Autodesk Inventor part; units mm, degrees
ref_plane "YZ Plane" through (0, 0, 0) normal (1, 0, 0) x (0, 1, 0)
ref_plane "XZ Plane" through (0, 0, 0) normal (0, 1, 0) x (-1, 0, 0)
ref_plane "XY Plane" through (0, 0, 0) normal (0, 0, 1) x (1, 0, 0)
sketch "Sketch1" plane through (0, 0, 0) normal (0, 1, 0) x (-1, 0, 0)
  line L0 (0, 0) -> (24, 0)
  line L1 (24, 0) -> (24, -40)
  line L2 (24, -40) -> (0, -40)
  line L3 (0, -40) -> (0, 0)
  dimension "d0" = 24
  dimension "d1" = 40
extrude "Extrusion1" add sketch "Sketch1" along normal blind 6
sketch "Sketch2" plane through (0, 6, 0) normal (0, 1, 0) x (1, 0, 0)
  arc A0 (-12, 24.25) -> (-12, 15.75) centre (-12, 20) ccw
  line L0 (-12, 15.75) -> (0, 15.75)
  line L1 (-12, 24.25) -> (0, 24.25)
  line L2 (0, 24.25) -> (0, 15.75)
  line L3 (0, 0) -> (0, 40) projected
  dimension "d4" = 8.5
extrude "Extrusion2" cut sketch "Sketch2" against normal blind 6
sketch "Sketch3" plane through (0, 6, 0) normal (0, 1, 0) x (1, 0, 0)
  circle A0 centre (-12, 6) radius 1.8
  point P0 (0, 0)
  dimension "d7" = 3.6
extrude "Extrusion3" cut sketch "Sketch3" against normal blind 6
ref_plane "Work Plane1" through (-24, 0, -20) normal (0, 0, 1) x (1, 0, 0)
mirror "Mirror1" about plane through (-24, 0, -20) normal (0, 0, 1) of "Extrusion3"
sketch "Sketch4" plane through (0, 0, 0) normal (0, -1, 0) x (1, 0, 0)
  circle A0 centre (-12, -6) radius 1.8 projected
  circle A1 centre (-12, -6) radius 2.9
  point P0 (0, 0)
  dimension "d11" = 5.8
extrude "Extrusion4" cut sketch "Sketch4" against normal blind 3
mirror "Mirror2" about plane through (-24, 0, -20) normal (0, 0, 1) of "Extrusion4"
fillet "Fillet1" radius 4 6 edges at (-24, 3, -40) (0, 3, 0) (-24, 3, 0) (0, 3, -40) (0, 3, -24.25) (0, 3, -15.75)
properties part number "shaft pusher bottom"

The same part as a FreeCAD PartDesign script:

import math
import FreeCAD as App
import Part
import Sketcher
Q = App.Units.Quantity


def edges_at(feature, points):
    """Names of the edges that pass closest to the given points."""
    edges = feature.Shape.Edges
    near = lambda p: min(range(len(edges)), key=lambda i: edges[i].distToShape(Part.Vertex(*p))[0])
    return sorted({f"Edge{near(p) + 1}" for p in points})

doc = App.newDocument("Part")
params = doc.addObject("Spreadsheet::Sheet", "Params")
for row, (alias, value) in enumerate([
    ("sketch1_width", "24 mm"),
    ("sketch1_height", "40 mm"),
    ("pad1_length", "6 mm"),
    ("sketch2_radius", "4.25 mm"),
    ("sketch2_width", "12 mm"),
    ("pocket1_length", "6 mm"),
    ("sketch3_diameter", "3.6 mm"),
    ("pocket2_length", "6 mm"),
    ("sketch4_diameter", "5.8 mm"),
    ("sketch4_diameter2", "3.6 mm"),
    ("pocket3_length", "3 mm"),
    ("fillet_radius", "4 mm"),
], start=1):
    params.set(f"A{row}", alias)
    params.set(f"B{row}", "=" + value)
    params.setAlias(f"B{row}", alias)

body = doc.addObject("PartDesign::Body", "Body")

# Sketch on XZ plane
sketch1 = body.newObject("Sketcher::SketchObject", "Sketch")
sketch1.AttachmentSupport = (doc.getObject("XZ_Plane"), [""])
sketch1.MapMode = "FlatFace"
sketch1.addGeometry(Part.LineSegment(App.Vector(-24, 0, 0), App.Vector(0, 0, 0)), False)
sketch1.addGeometry(Part.LineSegment(App.Vector(0, 0, 0), App.Vector(0, -40, 0)), False)
sketch1.addGeometry(Part.LineSegment(App.Vector(0, -40, 0), App.Vector(-24, -40, 0)), False)
sketch1.addGeometry(Part.LineSegment(App.Vector(-24, -40, 0), App.Vector(-24, 0, 0)), False)
sketch1.addConstraint(Sketcher.Constraint("Coincident", 0, 2, 1, 1))
sketch1.addConstraint(Sketcher.Constraint("Coincident", 1, 2, 2, 1))
sketch1.addConstraint(Sketcher.Constraint("Coincident", 2, 2, 3, 1))
sketch1.addConstraint(Sketcher.Constraint("Coincident", 3, 2, 0, 1))
sketch1.addConstraint(Sketcher.Constraint("Horizontal", 0))
sketch1.addConstraint(Sketcher.Constraint("Vertical", 1))
sketch1.addConstraint(Sketcher.Constraint("Horizontal", 2))
sketch1.addConstraint(Sketcher.Constraint("Vertical", 3))
sketch1.addConstraint(Sketcher.Constraint("Coincident", 0, 2, -1, 1))
sketch1.addConstraint(Sketcher.Constraint("DistanceX", 0, 1, 0, 2, Q("24 mm")))
sketch1.addConstraint(Sketcher.Constraint("DistanceY", 1, 2, 1, 1, Q("40 mm")))
sketch1.setExpression("Constraints[9]", "Params.sketch1_width")
sketch1.setExpression("Constraints[10]", "Params.sketch1_height")
pad1 = body.newObject("PartDesign::Pad", "Pad")
pad1.Profile = sketch1
pad1.setExpression("Length", "Params.pad1_length")
pad1.Reversed = True

# Sketch on XZ plane
sketch2 = body.newObject("Sketcher::SketchObject", "Sketch001")
sketch2.AttachmentSupport = (doc.getObject("XZ_Plane"), [""])
sketch2.MapMode = "FlatFace"
sketch2.AttachmentOffset = App.Placement(App.Vector(0, 0, -6), App.Rotation())
sketch2.addGeometry(Part.LineSegment(App.Vector(0, -24.2, 0), App.Vector(-12, -24.2, 0)), False)
sketch2.addGeometry(Part.ArcOfCircle(Part.Circle(App.Vector(-12, -20, 0), App.Vector(0, 0, 1), 4.2), math.radians(90), math.radians(270)), False)
sketch2.addGeometry(Part.LineSegment(App.Vector(-12, -15.8, 0), App.Vector(0, -15.8, 0)), False)
sketch2.addGeometry(Part.LineSegment(App.Vector(0, -15.8, 0), App.Vector(0, -24.2, 0)), False)
sketch2.addConstraint(Sketcher.Constraint("Tangent", 0, 2, 1, 2))
sketch2.addConstraint(Sketcher.Constraint("Tangent", 1, 1, 2, 1))
sketch2.addConstraint(Sketcher.Constraint("Coincident", 2, 2, 3, 1))
sketch2.addConstraint(Sketcher.Constraint("Coincident", 3, 2, 0, 1))
sketch2.addConstraint(Sketcher.Constraint("Horizontal", 0))
sketch2.addConstraint(Sketcher.Constraint("Horizontal", 2))
sketch2.addConstraint(Sketcher.Constraint("Vertical", 3))
sketch2.addConstraint(Sketcher.Constraint("PointOnObject", 2, 2, -2))
sketch2.addConstraint(Sketcher.Constraint("Radius", 1, Q("4.25 mm")))
sketch2.addConstraint(Sketcher.Constraint("DistanceX", 0, 2, 0, 1, Q("12 mm")))
sketch2.addConstraint(Sketcher.Constraint("DistanceY", 1, 3, -1, 1, Q("20 mm")))
sketch2.setExpression("Constraints[8]", "Params.sketch2_radius")
sketch2.setExpression("Constraints[9]", "Params.sketch2_width")
pocket1 = body.newObject("PartDesign::Pocket", "Pocket")
pocket1.Profile = sketch2
pocket1.setExpression("Length", "Params.pocket1_length")
pocket1.Reversed = True

# Sketch on XZ plane
sketch3 = body.newObject("Sketcher::SketchObject", "Sketch002")
sketch3.AttachmentSupport = (doc.getObject("XZ_Plane"), [""])
sketch3.MapMode = "FlatFace"
sketch3.AttachmentOffset = App.Placement(App.Vector(0, 0, -6), App.Rotation())
sketch3.addGeometry(Part.Circle(App.Vector(-12, -6, 0), App.Vector(0, 0, 1), 1.8), False)
sketch3.addConstraint(Sketcher.Constraint("Diameter", 0, Q("3.6 mm")))
sketch3.addConstraint(Sketcher.Constraint("DistanceX", 0, 3, -1, 1, Q("12 mm")))
sketch3.addConstraint(Sketcher.Constraint("DistanceY", 0, 3, -1, 1, Q("6 mm")))
sketch3.setExpression("Constraints[0]", "Params.sketch3_diameter")
pocket2 = body.newObject("PartDesign::Pocket", "Pocket001")
pocket2.Profile = sketch3
pocket2.setExpression("Length", "Params.pocket2_length")
pocket2.Reversed = True
doc.recompute()

datumplane = body.newObject("PartDesign::Plane", "DatumPlane")
datumplane.AttachmentSupport = (doc.getObject("XY_Plane"), [""])
datumplane.MapMode = "FlatFace"
datumplane.AttachmentOffset = App.Placement(App.Vector(0, 0, -20), App.Rotation())
mirrored = body.newObject("PartDesign::Mirrored", "Mirrored")
mirrored.Originals = [pocket2]
mirrored.MirrorPlane = (datumplane, [""])
body.Tip = mirrored

# Sketch on XZ plane
sketch4 = body.newObject("Sketcher::SketchObject", "Sketch003")
sketch4.AttachmentSupport = (doc.getObject("XZ_Plane"), [""])
sketch4.MapMode = "FlatFace"
sketch4.addGeometry(Part.Circle(App.Vector(-12, -6, 0), App.Vector(0, 0, 1), 2.9), False)
sketch4.addGeometry(Part.Circle(App.Vector(-12, -6, 0), App.Vector(0, 0, 1), 1.8), False)
sketch4.addConstraint(Sketcher.Constraint("Coincident", 1, 3, 0, 3))
sketch4.addConstraint(Sketcher.Constraint("Diameter", 0, Q("5.8 mm")))
sketch4.addConstraint(Sketcher.Constraint("Diameter", 1, Q("3.6 mm")))
sketch4.addConstraint(Sketcher.Constraint("DistanceX", 0, 3, -1, 1, Q("12 mm")))
sketch4.addConstraint(Sketcher.Constraint("DistanceY", 0, 3, -1, 1, Q("6 mm")))
sketch4.setExpression("Constraints[1]", "Params.sketch4_diameter")
sketch4.setExpression("Constraints[2]", "Params.sketch4_diameter2")
pocket3 = body.newObject("PartDesign::Pocket", "Pocket002")
pocket3.Profile = sketch4
pocket3.setExpression("Length", "Params.pocket3_length")
doc.recompute()

datumplane2 = body.newObject("PartDesign::Plane", "DatumPlane001")
datumplane2.AttachmentSupport = (doc.getObject("XY_Plane"), [""])
datumplane2.MapMode = "FlatFace"
datumplane2.AttachmentOffset = App.Placement(App.Vector(0, 0, -20), App.Rotation())
mirrored2 = body.newObject("PartDesign::Mirrored", "Mirrored001")
mirrored2.Originals = [pocket3]
mirrored2.MirrorPlane = (datumplane2, [""])
body.Tip = mirrored2
doc.recompute()

fillet = body.newObject("PartDesign::Fillet", "Fillet")
fillet.Base = (mirrored2, edges_at(mirrored2, [
    (-24, 3, -40),
    (0, 3, 0),
    (-24, 3, 0),
    (0, 3, -40),
    (0, 3, -24.25),
    (0, 3, -15.75),
]))
fillet.setExpression("Radius", "Params.fillet_radius")

doc.recompute()
